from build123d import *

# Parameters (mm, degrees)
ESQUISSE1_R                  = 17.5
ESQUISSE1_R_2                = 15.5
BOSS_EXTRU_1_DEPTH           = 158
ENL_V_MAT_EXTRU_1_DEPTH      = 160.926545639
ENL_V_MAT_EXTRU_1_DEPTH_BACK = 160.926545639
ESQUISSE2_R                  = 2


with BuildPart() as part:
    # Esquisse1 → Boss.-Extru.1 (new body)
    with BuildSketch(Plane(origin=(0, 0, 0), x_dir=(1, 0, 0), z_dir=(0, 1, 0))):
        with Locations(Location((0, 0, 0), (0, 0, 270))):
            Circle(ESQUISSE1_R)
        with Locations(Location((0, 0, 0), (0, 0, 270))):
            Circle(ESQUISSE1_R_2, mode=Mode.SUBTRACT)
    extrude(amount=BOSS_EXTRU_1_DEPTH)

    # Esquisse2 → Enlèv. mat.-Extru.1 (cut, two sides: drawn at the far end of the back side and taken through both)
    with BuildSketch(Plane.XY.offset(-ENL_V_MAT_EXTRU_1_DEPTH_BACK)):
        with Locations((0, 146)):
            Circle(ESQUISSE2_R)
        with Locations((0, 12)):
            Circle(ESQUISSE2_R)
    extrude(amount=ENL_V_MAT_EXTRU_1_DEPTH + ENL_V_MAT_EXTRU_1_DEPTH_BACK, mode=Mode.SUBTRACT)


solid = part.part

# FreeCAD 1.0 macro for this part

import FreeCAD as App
import Part
import Sketcher

doc = App.newDocument("Part")
body = doc.addObject("PartDesign::Body", "Body")

# Sketch on XZ plane
sketch1 = body.newObject("Sketcher::SketchObject", "Sketch")
sketch1.AttachmentSupport = (doc.getObject("XZ_Plane"), [""])
sketch1.MapMode = "FlatFace"
sketch1.addGeometry(Part.Circle(App.Vector(0, 0, 0), App.Vector(0, 0, 1), 18), False)
sketch1.addGeometry(Part.Circle(App.Vector(0, 0, 0), App.Vector(0, 0, 1), 16), False)
sketch1.addConstraint(Sketcher.Constraint("Coincident", 0, 3, -1, 1))
sketch1.addConstraint(Sketcher.Constraint("Coincident", 1, 3, -1, 1))
sketch1.addConstraint(Sketcher.Constraint("Diameter", 0, 35.0))
sketch1.addConstraint(Sketcher.Constraint("Diameter", 1, 31.0))
pad1 = body.newObject("PartDesign::Pad", "Pad")
pad1.Profile = sketch1
pad1.Length = 158
pad1.Reversed = True

# Sketch on XY plane
sketch2 = body.newObject("Sketcher::SketchObject", "Sketch001")
sketch2.AttachmentSupport = (doc.getObject("XY_Plane"), [""])
sketch2.MapMode = "FlatFace"
sketch2.addGeometry(Part.Circle(App.Vector(0, 146, 0), App.Vector(0, 0, 1), 2), False)
sketch2.addGeometry(Part.Circle(App.Vector(0, 12, 0), App.Vector(0, 0, 1), 2), False)
sketch2.addConstraint(Sketcher.Constraint("Equal", 0, 1))
sketch2.addConstraint(Sketcher.Constraint("PointOnObject", 0, 3, -2))
sketch2.addConstraint(Sketcher.Constraint("PointOnObject", 1, 3, -2))
sketch2.addConstraint(Sketcher.Constraint("Diameter", 0, 4.0))
sketch2.addConstraint(Sketcher.Constraint("DistanceY", -1, 1, 0, 3, 146.0))
sketch2.addConstraint(Sketcher.Constraint("DistanceY", -1, 1, 1, 3, 12.0))
pocket1 = body.newObject("PartDesign::Pocket", "Pocket")
pocket1.Profile = sketch2
pocket1.Type = "ThroughAll"
pocket1.Midplane = True

doc.recompute()
